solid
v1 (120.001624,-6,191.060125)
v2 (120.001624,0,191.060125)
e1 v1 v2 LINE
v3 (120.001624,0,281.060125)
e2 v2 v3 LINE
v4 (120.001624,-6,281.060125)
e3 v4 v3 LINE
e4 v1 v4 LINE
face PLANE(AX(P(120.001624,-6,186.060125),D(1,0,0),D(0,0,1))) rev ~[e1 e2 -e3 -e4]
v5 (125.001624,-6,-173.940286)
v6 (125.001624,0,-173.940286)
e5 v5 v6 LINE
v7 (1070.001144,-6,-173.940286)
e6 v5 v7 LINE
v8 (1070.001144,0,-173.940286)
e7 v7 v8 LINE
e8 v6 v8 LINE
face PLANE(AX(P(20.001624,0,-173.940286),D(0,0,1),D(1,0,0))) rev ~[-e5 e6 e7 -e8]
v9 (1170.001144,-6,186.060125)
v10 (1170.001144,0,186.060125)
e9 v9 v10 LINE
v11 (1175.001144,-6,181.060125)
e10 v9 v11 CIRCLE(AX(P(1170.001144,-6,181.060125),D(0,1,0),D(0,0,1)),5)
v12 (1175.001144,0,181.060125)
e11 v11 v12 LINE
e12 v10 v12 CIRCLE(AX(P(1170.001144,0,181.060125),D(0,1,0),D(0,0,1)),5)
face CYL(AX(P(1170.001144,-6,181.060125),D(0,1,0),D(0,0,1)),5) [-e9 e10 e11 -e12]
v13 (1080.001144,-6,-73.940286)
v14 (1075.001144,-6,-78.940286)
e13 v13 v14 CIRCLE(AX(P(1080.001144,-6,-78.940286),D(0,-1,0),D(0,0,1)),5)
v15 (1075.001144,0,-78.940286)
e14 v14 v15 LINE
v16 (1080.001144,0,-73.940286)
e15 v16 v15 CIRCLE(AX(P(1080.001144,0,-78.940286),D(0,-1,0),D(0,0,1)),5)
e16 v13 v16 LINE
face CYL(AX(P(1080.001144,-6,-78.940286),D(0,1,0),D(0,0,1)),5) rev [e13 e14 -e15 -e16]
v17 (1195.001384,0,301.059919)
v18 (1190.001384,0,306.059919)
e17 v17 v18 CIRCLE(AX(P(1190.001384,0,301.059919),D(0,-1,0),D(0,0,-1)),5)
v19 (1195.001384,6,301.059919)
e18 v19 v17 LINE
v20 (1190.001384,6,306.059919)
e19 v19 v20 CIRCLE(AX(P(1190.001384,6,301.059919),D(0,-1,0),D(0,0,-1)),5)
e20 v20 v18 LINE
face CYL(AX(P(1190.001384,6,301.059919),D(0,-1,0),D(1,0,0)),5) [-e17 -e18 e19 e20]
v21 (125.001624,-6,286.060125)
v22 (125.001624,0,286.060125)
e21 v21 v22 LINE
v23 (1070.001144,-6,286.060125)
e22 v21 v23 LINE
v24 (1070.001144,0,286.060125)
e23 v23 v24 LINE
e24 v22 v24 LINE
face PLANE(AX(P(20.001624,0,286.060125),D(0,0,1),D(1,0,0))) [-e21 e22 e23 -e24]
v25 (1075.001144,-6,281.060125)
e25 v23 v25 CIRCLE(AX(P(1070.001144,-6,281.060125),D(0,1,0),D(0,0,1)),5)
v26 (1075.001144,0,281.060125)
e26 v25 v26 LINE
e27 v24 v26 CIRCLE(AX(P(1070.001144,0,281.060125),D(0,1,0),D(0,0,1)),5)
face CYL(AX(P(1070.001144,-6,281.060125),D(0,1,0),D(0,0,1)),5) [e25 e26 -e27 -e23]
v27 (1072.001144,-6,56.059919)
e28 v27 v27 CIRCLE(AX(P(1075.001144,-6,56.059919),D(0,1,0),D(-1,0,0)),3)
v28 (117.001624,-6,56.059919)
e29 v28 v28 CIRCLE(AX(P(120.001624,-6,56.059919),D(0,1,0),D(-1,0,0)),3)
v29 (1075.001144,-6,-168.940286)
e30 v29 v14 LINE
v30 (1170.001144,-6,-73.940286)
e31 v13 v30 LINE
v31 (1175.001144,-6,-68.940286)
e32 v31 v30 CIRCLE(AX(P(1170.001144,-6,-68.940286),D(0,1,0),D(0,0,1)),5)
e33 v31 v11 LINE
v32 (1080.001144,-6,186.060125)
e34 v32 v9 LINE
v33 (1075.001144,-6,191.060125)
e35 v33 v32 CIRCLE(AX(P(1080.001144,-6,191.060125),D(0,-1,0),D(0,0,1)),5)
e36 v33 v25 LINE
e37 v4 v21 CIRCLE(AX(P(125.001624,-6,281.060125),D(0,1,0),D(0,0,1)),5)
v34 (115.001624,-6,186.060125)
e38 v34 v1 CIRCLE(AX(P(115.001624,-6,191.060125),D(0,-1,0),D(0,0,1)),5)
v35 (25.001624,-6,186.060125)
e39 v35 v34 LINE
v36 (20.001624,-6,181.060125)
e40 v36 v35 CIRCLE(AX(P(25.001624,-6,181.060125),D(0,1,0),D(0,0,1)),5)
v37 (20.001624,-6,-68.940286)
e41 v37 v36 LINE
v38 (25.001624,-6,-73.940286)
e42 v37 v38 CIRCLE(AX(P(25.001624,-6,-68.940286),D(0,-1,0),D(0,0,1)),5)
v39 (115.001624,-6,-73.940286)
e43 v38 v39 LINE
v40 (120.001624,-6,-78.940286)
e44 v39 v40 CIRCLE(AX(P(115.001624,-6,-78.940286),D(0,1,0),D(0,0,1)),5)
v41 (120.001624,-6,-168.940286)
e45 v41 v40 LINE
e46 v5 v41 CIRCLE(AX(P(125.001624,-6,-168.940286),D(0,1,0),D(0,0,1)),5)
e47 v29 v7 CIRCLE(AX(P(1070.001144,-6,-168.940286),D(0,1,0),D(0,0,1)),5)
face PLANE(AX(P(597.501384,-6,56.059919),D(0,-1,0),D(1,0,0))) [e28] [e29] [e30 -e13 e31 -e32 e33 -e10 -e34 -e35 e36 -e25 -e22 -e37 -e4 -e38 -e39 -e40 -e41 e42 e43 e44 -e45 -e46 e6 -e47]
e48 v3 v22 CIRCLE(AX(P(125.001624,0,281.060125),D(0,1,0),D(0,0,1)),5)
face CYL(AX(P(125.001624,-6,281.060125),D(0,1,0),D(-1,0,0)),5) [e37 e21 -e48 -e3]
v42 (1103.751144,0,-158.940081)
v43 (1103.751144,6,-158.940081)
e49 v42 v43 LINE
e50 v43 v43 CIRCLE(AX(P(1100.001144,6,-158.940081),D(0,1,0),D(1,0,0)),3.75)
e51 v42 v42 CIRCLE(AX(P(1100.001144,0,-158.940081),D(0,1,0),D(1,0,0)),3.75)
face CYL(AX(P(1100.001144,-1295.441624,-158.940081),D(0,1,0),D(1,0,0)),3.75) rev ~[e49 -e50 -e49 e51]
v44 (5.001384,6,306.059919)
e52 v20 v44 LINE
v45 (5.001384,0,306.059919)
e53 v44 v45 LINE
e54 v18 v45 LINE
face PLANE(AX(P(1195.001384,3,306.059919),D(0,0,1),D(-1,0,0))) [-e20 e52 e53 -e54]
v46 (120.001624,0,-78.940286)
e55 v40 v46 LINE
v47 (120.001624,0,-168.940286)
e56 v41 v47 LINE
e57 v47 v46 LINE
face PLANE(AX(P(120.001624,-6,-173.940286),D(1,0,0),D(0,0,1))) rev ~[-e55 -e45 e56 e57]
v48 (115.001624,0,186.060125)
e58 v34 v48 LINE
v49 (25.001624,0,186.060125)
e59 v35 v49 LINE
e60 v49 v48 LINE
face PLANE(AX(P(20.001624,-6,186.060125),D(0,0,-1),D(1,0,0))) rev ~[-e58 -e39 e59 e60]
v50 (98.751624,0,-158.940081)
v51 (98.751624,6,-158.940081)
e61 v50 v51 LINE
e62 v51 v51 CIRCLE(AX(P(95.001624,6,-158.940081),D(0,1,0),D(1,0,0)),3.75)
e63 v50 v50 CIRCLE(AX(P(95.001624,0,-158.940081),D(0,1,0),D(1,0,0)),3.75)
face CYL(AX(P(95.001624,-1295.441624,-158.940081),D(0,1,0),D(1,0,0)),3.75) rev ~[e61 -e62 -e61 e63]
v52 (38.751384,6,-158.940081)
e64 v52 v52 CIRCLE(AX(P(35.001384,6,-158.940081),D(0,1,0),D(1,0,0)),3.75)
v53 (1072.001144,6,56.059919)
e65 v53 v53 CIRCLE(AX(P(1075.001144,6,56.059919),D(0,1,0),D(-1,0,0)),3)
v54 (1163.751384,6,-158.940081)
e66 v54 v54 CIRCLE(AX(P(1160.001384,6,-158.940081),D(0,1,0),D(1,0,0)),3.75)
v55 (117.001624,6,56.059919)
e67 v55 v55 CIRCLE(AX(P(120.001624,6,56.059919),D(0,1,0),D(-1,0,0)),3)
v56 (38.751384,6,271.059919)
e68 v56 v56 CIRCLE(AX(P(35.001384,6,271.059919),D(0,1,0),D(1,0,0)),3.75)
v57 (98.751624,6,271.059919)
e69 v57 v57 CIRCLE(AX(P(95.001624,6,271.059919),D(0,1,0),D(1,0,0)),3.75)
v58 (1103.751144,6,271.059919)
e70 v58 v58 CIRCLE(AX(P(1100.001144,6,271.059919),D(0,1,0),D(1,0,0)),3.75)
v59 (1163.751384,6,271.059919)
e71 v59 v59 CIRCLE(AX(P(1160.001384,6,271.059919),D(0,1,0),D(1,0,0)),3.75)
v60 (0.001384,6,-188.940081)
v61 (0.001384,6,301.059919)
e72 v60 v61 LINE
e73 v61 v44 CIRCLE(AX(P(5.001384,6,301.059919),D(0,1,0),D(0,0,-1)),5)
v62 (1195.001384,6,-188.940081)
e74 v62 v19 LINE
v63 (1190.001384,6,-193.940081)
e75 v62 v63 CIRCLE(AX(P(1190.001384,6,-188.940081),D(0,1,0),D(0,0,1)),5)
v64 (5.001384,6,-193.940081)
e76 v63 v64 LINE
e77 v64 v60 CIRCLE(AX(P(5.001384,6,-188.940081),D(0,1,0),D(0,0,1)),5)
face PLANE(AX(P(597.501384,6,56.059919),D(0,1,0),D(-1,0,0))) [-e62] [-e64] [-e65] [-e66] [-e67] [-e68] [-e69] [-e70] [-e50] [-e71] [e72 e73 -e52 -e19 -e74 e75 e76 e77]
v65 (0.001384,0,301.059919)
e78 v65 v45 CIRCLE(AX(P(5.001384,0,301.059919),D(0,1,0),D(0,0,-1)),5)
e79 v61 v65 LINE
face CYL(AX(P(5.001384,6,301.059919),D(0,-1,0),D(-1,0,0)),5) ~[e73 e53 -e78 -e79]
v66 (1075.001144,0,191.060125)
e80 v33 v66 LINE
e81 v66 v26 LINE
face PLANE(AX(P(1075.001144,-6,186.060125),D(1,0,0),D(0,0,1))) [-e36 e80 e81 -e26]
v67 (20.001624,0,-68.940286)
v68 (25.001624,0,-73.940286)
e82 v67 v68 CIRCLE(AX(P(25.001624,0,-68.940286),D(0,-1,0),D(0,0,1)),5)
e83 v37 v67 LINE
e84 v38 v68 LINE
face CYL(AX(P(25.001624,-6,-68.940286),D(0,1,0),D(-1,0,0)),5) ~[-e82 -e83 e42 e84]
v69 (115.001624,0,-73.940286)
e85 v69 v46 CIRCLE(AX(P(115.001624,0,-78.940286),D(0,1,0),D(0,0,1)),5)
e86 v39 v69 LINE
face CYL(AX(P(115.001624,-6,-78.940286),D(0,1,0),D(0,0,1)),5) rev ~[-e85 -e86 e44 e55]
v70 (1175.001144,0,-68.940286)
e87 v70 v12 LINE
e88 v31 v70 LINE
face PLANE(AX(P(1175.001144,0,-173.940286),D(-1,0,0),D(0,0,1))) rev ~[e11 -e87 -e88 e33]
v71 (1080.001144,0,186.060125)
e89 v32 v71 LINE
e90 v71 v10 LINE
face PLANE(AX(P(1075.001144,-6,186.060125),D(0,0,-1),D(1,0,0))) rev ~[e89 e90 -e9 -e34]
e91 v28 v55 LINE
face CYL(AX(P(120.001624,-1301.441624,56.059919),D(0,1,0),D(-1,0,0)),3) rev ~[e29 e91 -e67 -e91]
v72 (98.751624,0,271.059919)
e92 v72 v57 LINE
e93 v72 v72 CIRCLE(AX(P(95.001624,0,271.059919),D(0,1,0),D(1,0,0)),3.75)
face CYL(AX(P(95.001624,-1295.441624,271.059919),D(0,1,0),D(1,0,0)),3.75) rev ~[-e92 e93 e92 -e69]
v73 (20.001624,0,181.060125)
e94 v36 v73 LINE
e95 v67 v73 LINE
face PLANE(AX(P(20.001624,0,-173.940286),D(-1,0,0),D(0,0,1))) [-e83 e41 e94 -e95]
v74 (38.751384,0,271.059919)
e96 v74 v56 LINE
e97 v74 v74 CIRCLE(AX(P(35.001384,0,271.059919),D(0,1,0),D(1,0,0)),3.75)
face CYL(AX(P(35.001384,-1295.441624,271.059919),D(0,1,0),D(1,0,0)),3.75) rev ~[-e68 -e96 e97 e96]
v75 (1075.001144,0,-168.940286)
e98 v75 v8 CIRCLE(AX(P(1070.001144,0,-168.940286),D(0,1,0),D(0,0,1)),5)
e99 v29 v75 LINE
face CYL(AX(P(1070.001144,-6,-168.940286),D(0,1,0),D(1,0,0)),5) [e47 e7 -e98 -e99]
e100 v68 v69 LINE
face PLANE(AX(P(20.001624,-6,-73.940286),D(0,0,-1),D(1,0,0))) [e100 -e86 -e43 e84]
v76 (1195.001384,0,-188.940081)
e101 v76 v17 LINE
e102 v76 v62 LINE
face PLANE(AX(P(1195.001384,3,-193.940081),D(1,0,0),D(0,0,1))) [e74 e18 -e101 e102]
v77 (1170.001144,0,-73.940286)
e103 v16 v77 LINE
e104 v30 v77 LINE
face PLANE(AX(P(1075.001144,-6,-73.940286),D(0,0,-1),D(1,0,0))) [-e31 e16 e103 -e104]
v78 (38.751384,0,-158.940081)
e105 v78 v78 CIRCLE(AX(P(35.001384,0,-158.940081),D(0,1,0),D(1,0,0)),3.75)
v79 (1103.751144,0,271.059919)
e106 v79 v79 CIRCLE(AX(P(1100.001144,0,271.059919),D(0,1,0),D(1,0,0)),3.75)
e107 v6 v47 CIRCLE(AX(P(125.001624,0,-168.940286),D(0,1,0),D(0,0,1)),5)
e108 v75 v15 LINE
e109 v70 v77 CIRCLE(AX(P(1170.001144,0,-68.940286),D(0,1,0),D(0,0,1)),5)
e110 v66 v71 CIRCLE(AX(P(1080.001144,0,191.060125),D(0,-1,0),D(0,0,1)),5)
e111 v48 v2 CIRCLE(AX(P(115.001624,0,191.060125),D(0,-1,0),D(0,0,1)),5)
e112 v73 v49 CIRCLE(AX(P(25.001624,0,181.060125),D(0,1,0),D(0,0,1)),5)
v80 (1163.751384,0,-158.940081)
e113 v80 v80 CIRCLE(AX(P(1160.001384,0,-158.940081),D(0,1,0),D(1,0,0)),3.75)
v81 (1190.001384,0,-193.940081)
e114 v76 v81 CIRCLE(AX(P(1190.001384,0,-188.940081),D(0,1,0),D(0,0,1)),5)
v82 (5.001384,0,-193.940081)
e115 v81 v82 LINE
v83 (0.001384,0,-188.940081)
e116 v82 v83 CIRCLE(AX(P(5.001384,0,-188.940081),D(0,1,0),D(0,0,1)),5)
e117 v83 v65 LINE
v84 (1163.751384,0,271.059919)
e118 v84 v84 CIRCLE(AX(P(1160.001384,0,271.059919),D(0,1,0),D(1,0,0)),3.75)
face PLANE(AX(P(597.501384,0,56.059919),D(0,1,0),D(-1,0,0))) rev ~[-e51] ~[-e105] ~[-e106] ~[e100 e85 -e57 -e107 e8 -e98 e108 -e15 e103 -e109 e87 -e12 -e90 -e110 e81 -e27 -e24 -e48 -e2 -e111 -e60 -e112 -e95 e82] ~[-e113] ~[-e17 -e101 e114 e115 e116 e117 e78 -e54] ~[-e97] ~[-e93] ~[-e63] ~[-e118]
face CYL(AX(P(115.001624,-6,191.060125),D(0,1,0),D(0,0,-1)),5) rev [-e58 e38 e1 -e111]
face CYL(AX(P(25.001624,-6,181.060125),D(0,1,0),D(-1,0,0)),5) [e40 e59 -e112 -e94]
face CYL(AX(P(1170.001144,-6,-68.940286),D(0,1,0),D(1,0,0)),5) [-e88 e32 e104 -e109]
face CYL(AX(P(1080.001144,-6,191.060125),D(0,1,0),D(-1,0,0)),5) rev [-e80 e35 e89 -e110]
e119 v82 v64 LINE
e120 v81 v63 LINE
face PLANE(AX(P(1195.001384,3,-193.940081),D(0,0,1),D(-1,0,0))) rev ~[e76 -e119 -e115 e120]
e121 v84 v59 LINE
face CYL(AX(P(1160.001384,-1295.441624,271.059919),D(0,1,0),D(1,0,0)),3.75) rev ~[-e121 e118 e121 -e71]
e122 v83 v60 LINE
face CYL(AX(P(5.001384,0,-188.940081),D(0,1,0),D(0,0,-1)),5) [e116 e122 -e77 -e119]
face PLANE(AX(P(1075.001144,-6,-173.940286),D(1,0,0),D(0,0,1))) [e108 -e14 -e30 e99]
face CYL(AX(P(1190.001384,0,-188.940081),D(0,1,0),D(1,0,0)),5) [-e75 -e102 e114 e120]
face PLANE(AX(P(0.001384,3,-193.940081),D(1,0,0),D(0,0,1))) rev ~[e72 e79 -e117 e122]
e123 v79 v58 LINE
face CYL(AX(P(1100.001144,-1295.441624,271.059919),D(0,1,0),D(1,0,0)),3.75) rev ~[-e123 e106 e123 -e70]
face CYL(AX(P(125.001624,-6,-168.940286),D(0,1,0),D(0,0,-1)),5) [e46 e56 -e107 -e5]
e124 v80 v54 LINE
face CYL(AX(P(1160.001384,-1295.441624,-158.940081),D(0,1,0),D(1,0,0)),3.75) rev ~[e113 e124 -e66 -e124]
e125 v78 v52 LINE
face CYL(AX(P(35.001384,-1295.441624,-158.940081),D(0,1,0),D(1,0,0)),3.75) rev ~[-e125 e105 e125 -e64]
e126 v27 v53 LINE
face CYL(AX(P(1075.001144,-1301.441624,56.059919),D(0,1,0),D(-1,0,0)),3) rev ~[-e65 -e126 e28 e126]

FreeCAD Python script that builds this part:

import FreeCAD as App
import Part
import Sketcher
from FreeCAD import Vector
Q = App.Units.Quantity


def edges_at(feature, points):
    """Names of the edges that pass closest to the given points."""
    edges = feature.Shape.Edges
    near = lambda p: min(range(len(edges)), key=lambda i: edges[i].distToShape(Part.Vertex(*p))[0])
    return sorted({f"Edge{near(p) + 1}" for p in points})


def add_polygon(sketch, points):
    """Adds a closed chain of lines whose ends are joined by coincident constraints."""
    first, n = sketch.GeometryCount, len(points)
    for a, b in zip(points, points[1:] + points[:1]):
        sketch.addGeometry(Part.LineSegment(App.Vector(*a, 0), App.Vector(*b, 0)), False)
    for i in range(n):
        sketch.addConstraint(Sketcher.Constraint("Coincident", first + i, 2, first + (i + 1) % n, 1))

doc = App.newDocument("Part")
body = doc.addObject("PartDesign::Body", "Body")

sketch1 = doc.addObject("Sketcher::SketchObject", "Sketch")
body.addObject(sketch1)
sketch1.AttachmentSupport = (doc.XZ_Plane, [""])
sketch1.MapMode = "FlatFace"
add_polygon(sketch1, [(20, 286), (20, -174), (1175, -174), (1175, 286)])
sketch1.addConstraint([
    Sketcher.Constraint("Vertical", 0),
    Sketcher.Constraint("Horizontal", 1),
    Sketcher.Constraint("Vertical", 2),
    Sketcher.Constraint("Horizontal", 3),
    Sketcher.Constraint("DistanceX", 1, 1, 1, 2, Q("1154.999521 mm")),
    Sketcher.Constraint("DistanceY", 0, 2, 0, 1, Q("460.000411 mm")),
    Sketcher.Constraint("DistanceX", -1, 1, 0, 2, Q("20.001624 mm")),
    Sketcher.Constraint("DistanceY", 0, 2, -1, 1, Q("173.940286 mm")),
])
pad1 = doc.addObject("PartDesign::Pad", "Pad")
body.addObject(pad1)
pad1.Profile = sketch1
pad1.Length = 6

sketch2 = doc.addObject("Sketcher::SketchObject", "Sketch001")
body.addObject(sketch2)
sketch2.AttachmentSupport = (doc.XZ_Plane, [""])
sketch2.MapMode = "FlatFace"
sketch2.AttachmentOffset = App.Placement(Vector(0, 0, 6), App.Rotation())
add_polygon(sketch2, [(20, 286), (20, 186), (120, 186), (120, 286)])
add_polygon(sketch2, [(1075, -74), (1075, -174), (1175, -174), (1175, -74)])
add_polygon(sketch2, [(1075, 286), (1075, 186), (1175, 186), (1175, 286)])
add_polygon(sketch2, [(20, -74), (20, -174), (120, -174), (120, -74)])
sketch2.addConstraint([
    Sketcher.Constraint("Vertical", 0),
    Sketcher.Constraint("Horizontal", 1),
    Sketcher.Constraint("Vertical", 2),
    Sketcher.Constraint("Horizontal", 3),
    Sketcher.Constraint("Vertical", 4),
    Sketcher.Constraint("Horizontal", 5),
    Sketcher.Constraint("Vertical", 6),
    Sketcher.Constraint("Horizontal", 7),
    Sketcher.Constraint("Vertical", 8),
    Sketcher.Constraint("Horizontal", 9),
    Sketcher.Constraint("Vertical", 10),
    Sketcher.Constraint("Horizontal", 11),
    Sketcher.Constraint("Vertical", 12),
    Sketcher.Constraint("Horizontal", 13),
    Sketcher.Constraint("Vertical", 14),
    Sketcher.Constraint("Horizontal", 15),
    Sketcher.Constraint("Horizontal", 1, 2, 8, 2),
    Sketcher.Constraint("Horizontal", 3, 2, 10, 2),
    Sketcher.Constraint("Horizontal", 5, 2, 12, 2),
    Sketcher.Constraint("Horizontal", 7, 2, 14, 2),
    Sketcher.Constraint("Vertical", 7, 2, 8, 2),
    Sketcher.Constraint("Vertical", 6, 2, 9, 2),
    Sketcher.Constraint("Vertical", 3, 2, 12, 2),
    Sketcher.Constraint("Vertical", 2, 2, 13, 2),
    Sketcher.Constraint("Equal", 3, 5),
    Sketcher.Constraint("Equal", 15, 0),
    Sketcher.Constraint("Equal", 2, 4),
    Sketcher.Constraint("DistanceX", 1, 1, 1, 2, Q("100 mm")),
    Sketcher.Constraint("DistanceX", 1, 2, 4, 2, Q("954.999521 mm")),
    Sketcher.Constraint("DistanceY", 4, 2, 1, 2, Q("360.000411 mm")),
    Sketcher.Constraint("DistanceX", -1, 1, 0, 2, Q("20.001624 mm")),
    Sketcher.Constraint("DistanceY", -1, 1, 0, 2, Q("186.060125 mm")),
])
pocket1 = doc.addObject("PartDesign::Pocket", "Pocket")
body.addObject(pocket1)
pocket1.Profile = sketch2
pocket1.Length = 6
doc.recompute()

fillet = doc.addObject("PartDesign::Fillet", "Fillet")
body.addObject(fillet)
fillet.Base = (pocket1, edges_at(pocket1, [
    (120.002, -3, 286.06),
    (120.002, -3, 186.06),
    (20.002, -3, 186.06),
    (20.002, -3, -73.94),
    (120.002, -3, -73.94),
    (120.002, -3, -173.94),
    (1075.001, -3, -173.94),
    (1075.001, -3, -73.94),
    (1175.001, -3, -73.94),
    (1175.001, -3, 186.06),
    (1075.001, -3, 186.06),
    (1075.001, -3, 286.06),
]))
fillet.Radius = 5

sketch3 = doc.addObject("Sketcher::SketchObject", "Sketch002")
body.addObject(sketch3)
sketch3.AttachmentSupport = (doc.XZ_Plane, [""])
sketch3.MapMode = "FlatFace"
add_polygon(sketch3, [(1195, 306), (1195, -194), (0, -194), (0, 306)])
sketch3.addConstraint([
    Sketcher.Constraint("Vertical", 0),
    Sketcher.Constraint("Horizontal", 1),
    Sketcher.Constraint("Vertical", 2),
    Sketcher.Constraint("Horizontal", 3),
    Sketcher.Constraint("DistanceX", 1, 2, 1, 1, Q("1195 mm")),
    Sketcher.Constraint("DistanceY", 0, 2, 0, 1, Q("500 mm")),
    Sketcher.Constraint("DistanceY", 0, 2, -1, 1, Q("193.940081 mm")),
    Sketcher.Constraint("DistanceX", -1, 1, 0, 2, Q("1195.001384 mm")),
])
pad2 = doc.addObject("PartDesign::Pad", "Pad001")
body.addObject(pad2)
pad2.Profile = sketch3
pad2.Length = 3
pad2.Reversed = True

sketch4 = doc.addObject("Sketcher::SketchObject", "Sketch003")
body.addObject(sketch4)
sketch4.AttachmentSupport = (doc.XZ_Plane, [""])
sketch4.MapMode = "FlatFace"
sketch4.AttachmentOffset = App.Placement(Vector(0, 0, -3), App.Rotation())
add_polygon(sketch4, [(1195, 306), (1195, -194), (0, -194), (0, 306)])
sketch4.addConstraint([
    Sketcher.Constraint("Vertical", 0),
    Sketcher.Constraint("Horizontal", 1),
    Sketcher.Constraint("Vertical", 2),
    Sketcher.Constraint("Horizontal", 3),
    Sketcher.Constraint("DistanceX", 1, 2, 1, 1, Q("1195 mm")),
    Sketcher.Constraint("DistanceY", 0, 2, 0, 1, Q("500 mm")),
    Sketcher.Constraint("DistanceY", 0, 2, -1, 1, Q("193.940081 mm")),
    Sketcher.Constraint("DistanceX", -1, 1, 0, 2, Q("1195.001384 mm")),
])
pad3 = doc.addObject("PartDesign::Pad", "Pad002")
body.addObject(pad3)
pad3.Profile = sketch4
pad3.Length = 3
pad3.Reversed = True
doc.recompute()

fillet2 = doc.addObject("PartDesign::Fillet", "Fillet001")
body.addObject(fillet2)
fillet2.Base = (pad3, edges_at(pad3, [
    (0.001, 3, 306.06),
    (0.001, 3, -193.94),
    (1195.001, 3, -193.94),
    (1195.001, 3, 306.06),
]))
fillet2.Radius = 5

sketch5 = doc.addObject("Sketcher::SketchObject", "Sketch004")
body.addObject(sketch5)
sketch5.AttachmentSupport = (doc.XZ_Plane, [""])
sketch5.MapMode = "FlatFace"
sketch5.addGeometry([
    Part.Circle(Vector(35, 271.1, 0), Vector(0, 0, 1), 3.8),
    Part.Circle(Vector(95, 271.1, 0), Vector(0, 0, 1), 3.8),
    Part.Circle(Vector(35, -158.9, 0), Vector(0, 0, 1), 3.8),
    Part.Circle(Vector(95, -158.9, 0), Vector(0, 0, 1), 3.8),
    Part.Circle(Vector(1100, 271.1, 0), Vector(0, 0, 1), 3.8),
    Part.Circle(Vector(1160, 271.1, 0), Vector(0, 0, 1), 3.8),
    Part.Circle(Vector(1160, -158.9, 0), Vector(0, 0, 1), 3.8),
    Part.Circle(Vector(1100, -158.9, 0), Vector(0, 0, 1), 3.8),
], False)
sketch5.addConstraint([
    Sketcher.Constraint("Equal", 0, 1),
    Sketcher.Constraint("Equal", 1, 2),
    Sketcher.Constraint("Equal", 2, 3),
    Sketcher.Constraint("Equal", 3, 4),
    Sketcher.Constraint("Equal", 4, 5),
    Sketcher.Constraint("Equal", 5, 6),
    Sketcher.Constraint("Equal", 6, 7),
    Sketcher.Constraint("Horizontal", 0, 3, 1, 3),
    Sketcher.Constraint("Horizontal", 2, 3, 3, 3),
    Sketcher.Constraint("Horizontal", 1, 3, 4, 3),
    Sketcher.Constraint("Horizontal", 4, 3, 5, 3),
    Sketcher.Constraint("Horizontal", 3, 3, 6, 3),
    Sketcher.Constraint("Horizontal", 6, 3, 7, 3),
    Sketcher.Constraint("Vertical", 0, 3, 2, 3),
    Sketcher.Constraint("Vertical", 1, 3, 3, 3),
    Sketcher.Constraint("Vertical", 5, 3, 6, 3),
    Sketcher.Constraint("Vertical", 4, 3, 7, 3),
    Sketcher.Constraint("Diameter", 0, Q("7.5 mm")),
    Sketcher.Constraint("DistanceY", 2, 3, 0, 3, Q("430 mm")),
    Sketcher.Constraint("DistanceX", 0, 3, 5, 3, Q("1125 mm")),
    Sketcher.Constraint("DistanceY", -1, 1, 0, 3, Q("271.059919 mm")),
    Sketcher.Constraint("DistanceX", 0, 3, 1, 3, Q("60.00024 mm")),
    Sketcher.Constraint("DistanceX", 1, 3, 4, 3, Q("1004.999521 mm")),
    Sketcher.Constraint("DistanceX", -1, 1, 0, 3, Q("35.001384 mm")),
])
doc.recompute()
hole = doc.addObject("PartDesign::Hole", "Hole")
body.addObject(hole)
hole.Profile = sketch5
hole.ThreadType = "None"
hole.Diameter = 7.5
hole.DepthType = "ThroughAll"

sketch6 = doc.addObject("Sketcher::SketchObject", "Sketch005")
body.addObject(sketch6)
sketch6.AttachmentSupport = (doc.XZ_Plane, [""])
sketch6.MapMode = "FlatFace"
sketch6.AttachmentOffset = App.Placement(Vector(0, 0, 6), App.Rotation())
sketch6.addGeometry([
    Part.Circle(Vector(120, 56.1, 0), Vector(0, 0, 1), 3),
    Part.Circle(Vector(1075, 56.1, 0), Vector(0, 0, 1), 3),
], False)
sketch6.addConstraint([
    Sketcher.Constraint("Equal", 0, 1),
    Sketcher.Constraint("Horizontal", 0, 3, 1, 3),
    Sketcher.Constraint("Diameter", 0, Q("6 mm")),
    Sketcher.Constraint("DistanceY", -1, 1, 0, 3, Q("56.059919 mm")),
    Sketcher.Constraint("DistanceX", 0, 3, 1, 3, Q("954.999521 mm")),
    Sketcher.Constraint("DistanceX", -1, 1, 0, 3, Q("120.001624 mm")),
])
doc.recompute()
hole2 = doc.addObject("PartDesign::Hole", "Hole001")
body.addObject(hole2)
hole2.Profile = sketch6
hole2.ThreadType = "None"
hole2.Diameter = 6
hole2.DepthType = "ThroughAll"

doc.recompute()
